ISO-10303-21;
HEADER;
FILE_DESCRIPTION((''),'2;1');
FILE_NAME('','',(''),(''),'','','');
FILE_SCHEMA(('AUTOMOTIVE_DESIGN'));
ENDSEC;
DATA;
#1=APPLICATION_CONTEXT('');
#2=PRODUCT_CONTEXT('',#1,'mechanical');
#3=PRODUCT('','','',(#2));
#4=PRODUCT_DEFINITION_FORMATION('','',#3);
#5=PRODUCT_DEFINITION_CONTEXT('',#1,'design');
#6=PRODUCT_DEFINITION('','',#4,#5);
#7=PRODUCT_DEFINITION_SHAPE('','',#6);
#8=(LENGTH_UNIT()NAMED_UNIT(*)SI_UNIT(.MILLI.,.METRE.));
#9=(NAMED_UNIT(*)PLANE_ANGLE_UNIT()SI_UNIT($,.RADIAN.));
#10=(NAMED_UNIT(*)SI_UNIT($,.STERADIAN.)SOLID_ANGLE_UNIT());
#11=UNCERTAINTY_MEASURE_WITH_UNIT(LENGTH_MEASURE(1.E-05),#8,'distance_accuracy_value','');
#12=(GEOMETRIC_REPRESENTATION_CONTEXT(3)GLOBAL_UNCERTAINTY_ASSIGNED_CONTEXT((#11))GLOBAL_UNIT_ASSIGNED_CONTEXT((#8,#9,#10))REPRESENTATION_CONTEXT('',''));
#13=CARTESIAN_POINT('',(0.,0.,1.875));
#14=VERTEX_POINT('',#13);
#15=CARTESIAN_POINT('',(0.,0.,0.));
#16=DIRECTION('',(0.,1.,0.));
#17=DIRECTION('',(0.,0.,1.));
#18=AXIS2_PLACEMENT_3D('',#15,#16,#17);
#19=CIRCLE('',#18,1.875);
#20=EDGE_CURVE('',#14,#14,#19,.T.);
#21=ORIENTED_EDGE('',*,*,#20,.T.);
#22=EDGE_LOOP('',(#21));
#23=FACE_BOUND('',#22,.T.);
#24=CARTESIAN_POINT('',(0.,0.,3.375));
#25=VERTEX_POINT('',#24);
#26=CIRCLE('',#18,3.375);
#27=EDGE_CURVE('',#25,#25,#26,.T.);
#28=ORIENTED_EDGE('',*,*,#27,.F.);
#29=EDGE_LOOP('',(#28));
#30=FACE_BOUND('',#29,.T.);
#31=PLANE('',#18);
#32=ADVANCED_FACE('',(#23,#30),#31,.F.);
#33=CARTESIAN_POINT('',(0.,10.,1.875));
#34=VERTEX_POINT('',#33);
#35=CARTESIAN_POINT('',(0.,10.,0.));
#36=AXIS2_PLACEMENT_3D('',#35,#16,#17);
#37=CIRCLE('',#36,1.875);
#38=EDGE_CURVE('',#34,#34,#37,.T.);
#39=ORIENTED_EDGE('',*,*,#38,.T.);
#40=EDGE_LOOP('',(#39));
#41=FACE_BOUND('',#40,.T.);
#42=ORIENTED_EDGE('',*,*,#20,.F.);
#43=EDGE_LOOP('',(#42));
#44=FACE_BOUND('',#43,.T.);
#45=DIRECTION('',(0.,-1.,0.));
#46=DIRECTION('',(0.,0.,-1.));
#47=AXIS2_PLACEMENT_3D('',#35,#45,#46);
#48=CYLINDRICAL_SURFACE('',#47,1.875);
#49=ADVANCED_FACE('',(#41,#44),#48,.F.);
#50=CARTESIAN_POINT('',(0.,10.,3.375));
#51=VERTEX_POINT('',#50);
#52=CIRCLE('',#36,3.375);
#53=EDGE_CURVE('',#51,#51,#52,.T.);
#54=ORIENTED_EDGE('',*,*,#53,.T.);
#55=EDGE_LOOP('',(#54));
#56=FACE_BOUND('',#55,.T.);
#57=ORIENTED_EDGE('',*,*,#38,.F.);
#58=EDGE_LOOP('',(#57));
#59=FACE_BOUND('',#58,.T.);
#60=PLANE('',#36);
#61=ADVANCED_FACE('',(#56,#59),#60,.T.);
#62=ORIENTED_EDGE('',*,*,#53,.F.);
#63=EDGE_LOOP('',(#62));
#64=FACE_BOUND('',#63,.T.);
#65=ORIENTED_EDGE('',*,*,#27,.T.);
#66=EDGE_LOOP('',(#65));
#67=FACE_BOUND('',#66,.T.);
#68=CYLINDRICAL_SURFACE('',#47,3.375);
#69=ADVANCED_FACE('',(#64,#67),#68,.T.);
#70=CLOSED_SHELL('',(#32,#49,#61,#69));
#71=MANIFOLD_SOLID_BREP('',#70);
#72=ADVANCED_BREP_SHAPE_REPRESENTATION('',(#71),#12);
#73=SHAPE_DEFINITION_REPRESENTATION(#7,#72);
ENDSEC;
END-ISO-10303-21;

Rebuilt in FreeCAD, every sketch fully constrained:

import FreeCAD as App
import Part
import Sketcher

doc = App.newDocument("Part")
body = doc.addObject("PartDesign::Body", "Body")

# Sketch on XZ plane
sketch1 = doc.addObject("Sketcher::SketchObject", "Sketch")
body.addObject(sketch1)
sketch1.AttachmentSupport = (doc.XZ_Plane, [""])
sketch1.MapMode = "FlatFace"
sketch1.addGeometry([
    Part.Circle(App.Vector(0, 0, 0), App.Vector(0, 0, 1), 3.4),
    Part.Circle(App.Vector(0, 0, 0), App.Vector(0, 0, 1), 1.9),
], False)
sketch1.addConstraint([
    Sketcher.Constraint("Coincident", 0, 3, -1, 1),
    Sketcher.Constraint("Coincident", 1, 3, -1, 1),
    Sketcher.Constraint("Diameter", 0, 6.75),
    Sketcher.Constraint("Diameter", 1, 3.75),
])
pad1 = doc.addObject("PartDesign::Pad", "Pad")
body.addObject(pad1)
pad1.Profile = sketch1
pad1.Length = 10
pad1.Reversed = True

doc.recompute()
